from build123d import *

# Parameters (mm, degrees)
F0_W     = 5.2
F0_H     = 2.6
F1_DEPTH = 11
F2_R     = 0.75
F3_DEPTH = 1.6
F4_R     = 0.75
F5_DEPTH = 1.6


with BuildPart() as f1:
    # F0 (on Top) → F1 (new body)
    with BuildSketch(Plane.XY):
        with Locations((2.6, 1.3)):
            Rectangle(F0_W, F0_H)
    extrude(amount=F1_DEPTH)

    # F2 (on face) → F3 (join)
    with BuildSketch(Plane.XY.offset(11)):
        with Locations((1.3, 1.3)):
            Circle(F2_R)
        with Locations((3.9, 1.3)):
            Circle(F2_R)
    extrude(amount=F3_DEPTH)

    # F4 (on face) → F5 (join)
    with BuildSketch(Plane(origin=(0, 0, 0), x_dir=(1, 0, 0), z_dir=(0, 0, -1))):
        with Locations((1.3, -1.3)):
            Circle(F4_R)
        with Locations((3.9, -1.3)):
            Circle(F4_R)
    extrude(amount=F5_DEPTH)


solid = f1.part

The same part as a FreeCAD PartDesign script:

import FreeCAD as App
import Part
import Sketcher
from FreeCAD import Vector


def add_polygon(sketch, points):
    """Adds a closed chain of lines whose ends are joined by coincident constraints."""
    first, n = sketch.GeometryCount, len(points)
    for a, b in zip(points, points[1:] + points[:1]):
        sketch.addGeometry(Part.LineSegment(App.Vector(*a, 0), App.Vector(*b, 0)), False)
    for i in range(n):
        sketch.addConstraint(Sketcher.Constraint("Coincident", first + i, 2, first + (i + 1) % n, 1))

doc = App.newDocument("Part")
params = doc.addObject("Spreadsheet::Sheet", "Params")
for row, (alias, value) in enumerate([
    ("sketch1_width", "5.2 mm"),
    ("sketch1_height", "2.6 mm"),
    ("pad1_length", "11 mm"),
    ("sketch2_diameter", "1.5 mm"),
    ("pad2_length", "1.6 mm"),
    ("sketch3_diameter", "1.5 mm"),
    ("pad3_length", "1.6 mm"),
], start=1):
    params.set(f"A{row}", alias)
    params.set(f"B{row}", "=" + value)
    params.setAlias(f"B{row}", alias)

body = doc.addObject("PartDesign::Body", "Body")

# Sketch on XY plane
sketch1 = body.newObject("Sketcher::SketchObject", "Sketch")
sketch1.AttachmentSupport = (doc.getObject("XY_Plane"), [""])
sketch1.MapMode = "FlatFace"
add_polygon(sketch1, [(0, 2.6), (0, 0), (5.2, 0), (5.2, 2.6)])  # lines 0-3
sketch1.addConstraint(Sketcher.Constraint("Vertical", 0))
sketch1.addConstraint(Sketcher.Constraint("Horizontal", 1))
sketch1.addConstraint(Sketcher.Constraint("Vertical", 2))
sketch1.addConstraint(Sketcher.Constraint("Horizontal", 3))
sketch1.addConstraint(Sketcher.Constraint("Coincident", 0, 2, -1, 1))
sketch1.addConstraint(Sketcher.Constraint("DistanceX", 1, 1, 1, 2, 5.2))
sketch1.addConstraint(Sketcher.Constraint("DistanceY", 0, 2, 0, 1, 2.6))
sketch1.setExpression("Constraints[9]", "Params.sketch1_width")
sketch1.setExpression("Constraints[10]", "Params.sketch1_height")
pad1 = body.newObject("PartDesign::Pad", "Pad")
pad1.Profile = sketch1
pad1.setExpression("Length", "Params.pad1_length")

# Sketch on XY plane
sketch2 = body.newObject("Sketcher::SketchObject", "Sketch001")
sketch2.AttachmentSupport = (doc.getObject("XY_Plane"), [""])
sketch2.MapMode = "FlatFace"
sketch2.AttachmentOffset = App.Placement(Vector(0, 0, 11), App.Rotation())
sketch2.addGeometry(Part.Circle(Vector(1.3, 1.3, 0), Vector(0, 0, 1), 0.8), False)
sketch2.addGeometry(Part.Circle(Vector(3.9, 1.3, 0), Vector(0, 0, 1), 0.8), False)
sketch2.addConstraint(Sketcher.Constraint("Equal", 0, 1))
sketch2.addConstraint(Sketcher.Constraint("Horizontal", 0, 3, 1, 3))
sketch2.addConstraint(Sketcher.Constraint("Diameter", 0, 1.5))
sketch2.addConstraint(Sketcher.Constraint("DistanceX", -1, 1, 0, 3, 1.3))
sketch2.addConstraint(Sketcher.Constraint("DistanceY", -1, 1, 0, 3, 1.3))
sketch2.addConstraint(Sketcher.Constraint("DistanceX", -1, 1, 1, 3, 3.9))
sketch2.setExpression("Constraints[2]", "Params.sketch2_diameter")
pad2 = body.newObject("PartDesign::Pad", "Pad001")
pad2.Profile = sketch2
pad2.setExpression("Length", "Params.pad2_length")

# Sketch on XY plane
sketch3 = body.newObject("Sketcher::SketchObject", "Sketch002")
sketch3.AttachmentSupport = (doc.getObject("XY_Plane"), [""])
sketch3.MapMode = "FlatFace"
sketch3.addGeometry(Part.Circle(Vector(1.3, 1.3, 0), Vector(0, 0, 1), 0.8), False)
sketch3.addGeometry(Part.Circle(Vector(3.9, 1.3, 0), Vector(0, 0, 1), 0.8), False)
sketch3.addConstraint(Sketcher.Constraint("Equal", 0, 1))
sketch3.addConstraint(Sketcher.Constraint("Horizontal", 0, 3, 1, 3))
sketch3.addConstraint(Sketcher.Constraint("Diameter", 0, 1.5))
sketch3.addConstraint(Sketcher.Constraint("DistanceX", -1, 1, 0, 3, 1.3))
sketch3.addConstraint(Sketcher.Constraint("DistanceY", -1, 1, 0, 3, 1.3))
sketch3.addConstraint(Sketcher.Constraint("DistanceX", -1, 1, 1, 3, 3.9))
sketch3.setExpression("Constraints[2]", "Params.sketch3_diameter")
pad3 = body.newObject("PartDesign::Pad", "Pad002")
pad3.Profile = sketch3
pad3.setExpression("Length", "Params.pad3_length")
pad3.Reversed = True

doc.recompute()
